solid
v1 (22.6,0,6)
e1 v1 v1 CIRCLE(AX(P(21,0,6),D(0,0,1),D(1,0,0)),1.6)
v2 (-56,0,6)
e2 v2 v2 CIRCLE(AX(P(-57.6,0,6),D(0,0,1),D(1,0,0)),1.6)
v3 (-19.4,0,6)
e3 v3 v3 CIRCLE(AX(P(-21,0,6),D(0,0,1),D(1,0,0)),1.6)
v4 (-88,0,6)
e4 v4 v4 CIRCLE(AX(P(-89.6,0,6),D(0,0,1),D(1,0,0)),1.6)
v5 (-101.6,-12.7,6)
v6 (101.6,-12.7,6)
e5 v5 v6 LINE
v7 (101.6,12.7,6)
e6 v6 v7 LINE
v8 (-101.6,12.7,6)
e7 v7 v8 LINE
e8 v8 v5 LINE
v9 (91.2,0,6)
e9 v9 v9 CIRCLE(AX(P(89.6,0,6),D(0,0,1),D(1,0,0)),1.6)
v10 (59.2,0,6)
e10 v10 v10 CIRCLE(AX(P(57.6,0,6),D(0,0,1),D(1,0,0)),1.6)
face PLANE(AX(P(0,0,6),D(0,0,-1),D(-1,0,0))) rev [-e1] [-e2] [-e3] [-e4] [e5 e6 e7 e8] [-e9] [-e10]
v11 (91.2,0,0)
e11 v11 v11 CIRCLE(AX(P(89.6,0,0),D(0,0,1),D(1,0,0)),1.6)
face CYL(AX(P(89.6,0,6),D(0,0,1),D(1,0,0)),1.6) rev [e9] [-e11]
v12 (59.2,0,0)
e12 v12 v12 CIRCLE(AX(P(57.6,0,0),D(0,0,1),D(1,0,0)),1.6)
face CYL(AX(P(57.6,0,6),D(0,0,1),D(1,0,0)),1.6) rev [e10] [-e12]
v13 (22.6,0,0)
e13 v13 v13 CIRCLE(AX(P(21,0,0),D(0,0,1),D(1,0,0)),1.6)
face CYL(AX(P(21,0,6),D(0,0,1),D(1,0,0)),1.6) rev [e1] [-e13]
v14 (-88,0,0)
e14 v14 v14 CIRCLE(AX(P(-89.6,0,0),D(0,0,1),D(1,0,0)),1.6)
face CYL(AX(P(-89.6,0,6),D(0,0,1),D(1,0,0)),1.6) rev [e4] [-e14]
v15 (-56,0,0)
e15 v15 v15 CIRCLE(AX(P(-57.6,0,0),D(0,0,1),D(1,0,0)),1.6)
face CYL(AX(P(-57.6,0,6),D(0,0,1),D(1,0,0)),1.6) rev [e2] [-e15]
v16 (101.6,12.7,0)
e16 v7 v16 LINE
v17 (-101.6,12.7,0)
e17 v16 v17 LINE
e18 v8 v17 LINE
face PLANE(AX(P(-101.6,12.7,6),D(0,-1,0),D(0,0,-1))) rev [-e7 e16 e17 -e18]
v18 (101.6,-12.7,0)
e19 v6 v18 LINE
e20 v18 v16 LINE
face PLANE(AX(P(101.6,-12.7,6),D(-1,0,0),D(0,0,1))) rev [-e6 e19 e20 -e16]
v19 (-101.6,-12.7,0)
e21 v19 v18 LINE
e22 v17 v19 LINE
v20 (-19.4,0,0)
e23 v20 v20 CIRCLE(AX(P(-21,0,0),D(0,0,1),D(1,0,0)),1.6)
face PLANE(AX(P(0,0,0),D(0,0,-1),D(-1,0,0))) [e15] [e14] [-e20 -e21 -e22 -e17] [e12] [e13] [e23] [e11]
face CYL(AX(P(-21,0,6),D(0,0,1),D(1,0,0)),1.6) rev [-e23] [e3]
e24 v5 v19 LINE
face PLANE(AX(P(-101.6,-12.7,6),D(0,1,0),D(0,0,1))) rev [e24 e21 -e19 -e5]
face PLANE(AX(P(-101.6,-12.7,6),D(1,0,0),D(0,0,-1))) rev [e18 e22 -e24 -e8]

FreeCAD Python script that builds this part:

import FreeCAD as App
import Part
import Sketcher

V = App.Vector
Q = App.Units.Quantity

doc = App.newDocument("Part")
body = doc.addObject("PartDesign::Body", "Body")

sketch1 = body.newObject("Sketcher::SketchObject", "Sketch")
sketch1.AttachmentSupport = (doc.getObject("XY_Plane"), [""])
sketch1.MapMode = "FlatFace"
sketch1.addGeometry(Part.LineSegment(V(-102, 13, 0), V(-102, -13, 0)), False)
sketch1.addGeometry(Part.LineSegment(V(-102, -13, 0), V(102, -13, 0)), False)
sketch1.addGeometry(Part.LineSegment(V(102, -13, 0), V(102, 13, 0)), False)
sketch1.addGeometry(Part.LineSegment(V(102, 13, 0), V(-102, 13, 0)), False)
sketch1.addConstraint(Sketcher.Constraint("Coincident", 0, 2, 1, 1))
sketch1.addConstraint(Sketcher.Constraint("Coincident", 1, 2, 2, 1))
sketch1.addConstraint(Sketcher.Constraint("Coincident", 2, 2, 3, 1))
sketch1.addConstraint(Sketcher.Constraint("Coincident", 3, 2, 0, 1))
sketch1.addConstraint(Sketcher.Constraint("Vertical", 0))
sketch1.addConstraint(Sketcher.Constraint("Horizontal", 1))
sketch1.addConstraint(Sketcher.Constraint("Vertical", 2))
sketch1.addConstraint(Sketcher.Constraint("Horizontal", 3))
sketch1.addConstraint(Sketcher.Constraint("Symmetric", 0, 2, 2, 2, -1, 1))
sketch1.addConstraint(Sketcher.Constraint("DistanceX", 1, 1, 1, 2, Q("203.2 mm")))
sketch1.addConstraint(Sketcher.Constraint("DistanceY", 0, 2, 0, 1, Q("25.4 mm")))
pad1 = body.newObject("PartDesign::Pad", "Pad")
pad1.Profile = sketch1
pad1.Length = 6

sketch2 = body.newObject("Sketcher::SketchObject", "Sketch001")
sketch2.AttachmentSupport = (doc.getObject("XY_Plane"), [""])
sketch2.MapMode = "FlatFace"
sketch2.AttachmentOffset = App.Placement(V(0, 0, 6), App.Rotation())
sketch2.addGeometry(Part.Circle(V(89.6, 0, 0), V(0, 0, 1), 1.6), False)
sketch2.addGeometry(Part.Circle(V(57.6, 0, 0), V(0, 0, 1), 1.6), False)
sketch2.addGeometry(Part.Circle(V(21, 0, 0), V(0, 0, 1), 1.6), False)
sketch2.addGeometry(Part.Circle(V(-21, 0, 0), V(0, 0, 1), 1.6), False)
sketch2.addGeometry(Part.Circle(V(-57.6, 0, 0), V(0, 0, 1), 1.6), False)
sketch2.addGeometry(Part.Circle(V(-89.6, 0, 0), V(0, 0, 1), 1.6), False)
sketch2.addConstraint(Sketcher.Constraint("Equal", 0, 1))
sketch2.addConstraint(Sketcher.Constraint("Equal", 1, 2))
sketch2.addConstraint(Sketcher.Constraint("Equal", 2, 3))
sketch2.addConstraint(Sketcher.Constraint("Equal", 3, 4))
sketch2.addConstraint(Sketcher.Constraint("Equal", 4, 5))
sketch2.addConstraint(Sketcher.Constraint("Symmetric", 2, 3, 3, 3, -1, 1))
sketch2.addConstraint(Sketcher.Constraint("Symmetric", 1, 3, 4, 3, -1, 1))
sketch2.addConstraint(Sketcher.Constraint("Symmetric", 0, 3, 5, 3, -1, 1))
sketch2.addConstraint(Sketcher.Constraint("PointOnObject", 0, 3, -1))
sketch2.addConstraint(Sketcher.Constraint("PointOnObject", 1, 3, -1))
sketch2.addConstraint(Sketcher.Constraint("PointOnObject", 2, 3, -1))
sketch2.addConstraint(Sketcher.Constraint("Diameter", 0, Q("3.2 mm")))
sketch2.addConstraint(Sketcher.Constraint("DistanceX", -1, 1, 2, 3, Q("21 mm")))
sketch2.addConstraint(Sketcher.Constraint("DistanceX", 1, 3, 0, 3, Q("32 mm")))
sketch2.addConstraint(Sketcher.Constraint("DistanceX", -1, 1, 0, 3, Q("89.6 mm")))
doc.recompute()
hole = body.newObject("PartDesign::Hole", "Hole")
hole.Profile = sketch2
hole.ThreadType = "None"
hole.Diameter = 3.2
hole.DepthType = "ThroughAll"

doc.recompute()
